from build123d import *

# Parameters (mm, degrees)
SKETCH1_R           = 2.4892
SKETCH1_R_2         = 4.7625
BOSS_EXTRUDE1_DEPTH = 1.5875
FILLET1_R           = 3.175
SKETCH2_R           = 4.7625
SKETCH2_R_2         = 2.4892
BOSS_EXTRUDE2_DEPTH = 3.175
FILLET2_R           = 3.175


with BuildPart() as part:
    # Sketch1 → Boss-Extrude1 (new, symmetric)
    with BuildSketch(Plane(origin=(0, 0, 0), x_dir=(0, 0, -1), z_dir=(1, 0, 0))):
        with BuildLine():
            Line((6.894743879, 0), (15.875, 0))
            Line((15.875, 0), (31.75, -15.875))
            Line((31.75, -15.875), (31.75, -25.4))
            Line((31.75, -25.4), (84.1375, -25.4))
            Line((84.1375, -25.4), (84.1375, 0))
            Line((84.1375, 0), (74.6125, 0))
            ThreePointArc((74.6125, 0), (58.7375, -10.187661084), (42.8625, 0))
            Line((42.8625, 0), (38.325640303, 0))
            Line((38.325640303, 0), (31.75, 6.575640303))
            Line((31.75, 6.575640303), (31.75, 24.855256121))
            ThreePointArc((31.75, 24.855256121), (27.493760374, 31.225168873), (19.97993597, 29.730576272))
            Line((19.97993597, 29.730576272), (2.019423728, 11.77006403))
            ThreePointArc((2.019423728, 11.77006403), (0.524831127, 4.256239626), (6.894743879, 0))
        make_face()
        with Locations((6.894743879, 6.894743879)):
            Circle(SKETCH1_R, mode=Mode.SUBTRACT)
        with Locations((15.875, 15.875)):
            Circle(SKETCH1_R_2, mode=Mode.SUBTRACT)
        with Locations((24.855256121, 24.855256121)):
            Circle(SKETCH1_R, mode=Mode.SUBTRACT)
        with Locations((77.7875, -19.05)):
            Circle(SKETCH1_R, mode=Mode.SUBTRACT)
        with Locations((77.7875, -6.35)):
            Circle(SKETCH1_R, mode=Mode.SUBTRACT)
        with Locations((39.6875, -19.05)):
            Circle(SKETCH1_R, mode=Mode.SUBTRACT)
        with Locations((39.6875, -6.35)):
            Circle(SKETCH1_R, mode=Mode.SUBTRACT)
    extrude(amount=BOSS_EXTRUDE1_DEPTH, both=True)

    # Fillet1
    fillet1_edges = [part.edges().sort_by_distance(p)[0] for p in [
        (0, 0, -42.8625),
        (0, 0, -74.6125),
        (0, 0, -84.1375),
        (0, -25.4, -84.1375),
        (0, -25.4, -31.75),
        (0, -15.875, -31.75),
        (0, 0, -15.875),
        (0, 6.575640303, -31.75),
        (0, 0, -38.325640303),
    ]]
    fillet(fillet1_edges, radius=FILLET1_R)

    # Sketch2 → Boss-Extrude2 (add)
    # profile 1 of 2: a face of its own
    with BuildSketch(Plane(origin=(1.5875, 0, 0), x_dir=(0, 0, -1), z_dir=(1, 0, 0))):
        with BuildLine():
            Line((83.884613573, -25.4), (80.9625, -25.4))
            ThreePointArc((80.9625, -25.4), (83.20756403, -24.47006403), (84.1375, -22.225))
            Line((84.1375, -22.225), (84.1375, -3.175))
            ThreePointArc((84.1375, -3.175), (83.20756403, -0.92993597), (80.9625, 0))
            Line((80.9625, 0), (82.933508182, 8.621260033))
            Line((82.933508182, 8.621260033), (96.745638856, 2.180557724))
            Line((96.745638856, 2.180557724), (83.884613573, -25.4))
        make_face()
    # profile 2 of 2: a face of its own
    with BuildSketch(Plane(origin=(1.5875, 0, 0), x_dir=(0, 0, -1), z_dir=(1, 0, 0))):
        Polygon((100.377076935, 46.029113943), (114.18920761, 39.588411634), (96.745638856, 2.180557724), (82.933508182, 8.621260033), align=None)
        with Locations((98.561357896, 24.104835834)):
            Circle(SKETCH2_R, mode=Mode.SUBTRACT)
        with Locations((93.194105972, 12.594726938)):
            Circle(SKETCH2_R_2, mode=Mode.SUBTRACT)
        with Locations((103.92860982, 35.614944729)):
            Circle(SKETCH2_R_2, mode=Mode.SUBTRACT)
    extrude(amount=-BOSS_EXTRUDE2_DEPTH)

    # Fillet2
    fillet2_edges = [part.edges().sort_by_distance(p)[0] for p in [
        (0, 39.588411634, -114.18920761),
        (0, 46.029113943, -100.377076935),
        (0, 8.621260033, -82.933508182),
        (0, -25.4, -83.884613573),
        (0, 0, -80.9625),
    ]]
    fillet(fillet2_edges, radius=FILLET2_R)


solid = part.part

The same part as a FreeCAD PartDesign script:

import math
import FreeCAD as App
import Part
import Sketcher
Q = App.Units.Quantity


def edges_at(feature, points):
    """Names of the edges that pass closest to the given points."""
    edges = feature.Shape.Edges
    near = lambda p: min(range(len(edges)), key=lambda i: edges[i].distToShape(Part.Vertex(*p))[0])
    return sorted({f"Edge{near(p) + 1}" for p in points})

doc = App.newDocument("Part")
params = doc.addObject("Spreadsheet::Sheet", "Params")
for row, (alias, value) in enumerate([
    ("sketch1_width", "1 in"),
    ("sketch1_length", "1 in"),
    ("sketch1_diameter", "0.196 in"),
    ("sketch1_diameter2", "0.375 in"),
    ("sketch1_radius", "0.6875 in"),
    ("pad1_length", "0.125 in"),
    ("fillet_radius", "0.125 in"),
    ("sketch2_diameter", "0.375 in"),
    ("sketch2_diameter2", "0.196 in"),
    ("sketch2_radius", "0.125 in"),
    ("sketch2_length", "0.6 in"),
    ("sketch2_length2", "1.625 in"),
    ("pad2_length", "0.125 in"),
    ("fillet2_radius", "0.125 in"),
], start=1):
    params.set(f"A{row}", alias)
    params.set(f"B{row}", "=" + value)
    params.setAlias(f"B{row}", alias)

body = doc.addObject("PartDesign::Body", "Body")

# Sketch on YZ plane
sketch1 = body.newObject("Sketcher::SketchObject", "Sketch")
sketch1.AttachmentSupport = (doc.getObject("YZ_Plane"), [""])
sketch1.MapMode = "FlatFace"
sketch1.addGeometry(Part.LineSegment(App.Vector(0, -6.9, 0), App.Vector(0, -15.9, 0)), False)
sketch1.addGeometry(Part.LineSegment(App.Vector(0, -15.9, 0), App.Vector(-15.9, -31.8, 0)), False)
sketch1.addGeometry(Part.LineSegment(App.Vector(-15.9, -31.8, 0), App.Vector(-25.4, -31.8, 0)), False)
sketch1.addGeometry(Part.LineSegment(App.Vector(-25.4, -31.8, 0), App.Vector(-25.4, -84.1, 0)), False)
sketch1.addGeometry(Part.LineSegment(App.Vector(-25.4, -84.1, 0), App.Vector(0, -84.1, 0)), False)
sketch1.addGeometry(Part.LineSegment(App.Vector(0, -84.1, 0), App.Vector(0, -74.6, 0)), False)
sketch1.addGeometry(Part.ArcOfCircle(Part.Circle(App.Vector(7.3, -58.7, 0), App.Vector(0, 0, 1), 17.5), math.radians(115), math.radians(245)), False)
sketch1.addGeometry(Part.LineSegment(App.Vector(0, -42.9, 0), App.Vector(0, -38.3, 0)), False)
sketch1.addGeometry(Part.LineSegment(App.Vector(0, -38.3, 0), App.Vector(6.6, -31.8, 0)), False)
sketch1.addGeometry(Part.LineSegment(App.Vector(6.6, -31.8, 0), App.Vector(24.9, -31.8, 0)), False)
sketch1.addGeometry(Part.ArcOfCircle(Part.Circle(App.Vector(24.9, -24.9, 0), App.Vector(0, 0, 1), 6.9), math.radians(-90), math.radians(45)), False)
sketch1.addGeometry(Part.LineSegment(App.Vector(29.7, -20, 0), App.Vector(11.8, -2, 0)), False)
sketch1.addGeometry(Part.ArcOfCircle(Part.Circle(App.Vector(6.9, -6.9, 0), App.Vector(0, 0, 1), 6.9), math.radians(45), math.radians(180)), False)
sketch1.addGeometry(Part.Circle(App.Vector(-19.1, -39.7, 0), App.Vector(0, 0, 1), 2.5), False)
sketch1.addGeometry(Part.Circle(App.Vector(-6.3, -39.7, 0), App.Vector(0, 0, 1), 2.5), False)
sketch1.addGeometry(Part.Circle(App.Vector(-19.1, -77.8, 0), App.Vector(0, 0, 1), 2.5), False)
sketch1.addGeometry(Part.Circle(App.Vector(-6.3, -77.8, 0), App.Vector(0, 0, 1), 2.5), False)
sketch1.addGeometry(Part.Circle(App.Vector(6.9, -6.9, 0), App.Vector(0, 0, 1), 2.5), False)
sketch1.addGeometry(Part.Circle(App.Vector(15.9, -15.9, 0), App.Vector(0, 0, 1), 4.8), False)
sketch1.addGeometry(Part.Circle(App.Vector(24.9, -24.9, 0), App.Vector(0, 0, 1), 2.5), False)
sketch1.addConstraint(Sketcher.Constraint("Coincident", 0, 2, 1, 1))
sketch1.addConstraint(Sketcher.Constraint("Coincident", 1, 2, 2, 1))
sketch1.addConstraint(Sketcher.Constraint("Coincident", 2, 2, 3, 1))
sketch1.addConstraint(Sketcher.Constraint("Coincident", 3, 2, 4, 1))
sketch1.addConstraint(Sketcher.Constraint("Coincident", 4, 2, 5, 1))
sketch1.addConstraint(Sketcher.Constraint("Coincident", 5, 2, 6, 2))
sketch1.addConstraint(Sketcher.Constraint("Coincident", 6, 1, 7, 1))
sketch1.addConstraint(Sketcher.Constraint("Coincident", 7, 2, 8, 1))
sketch1.addConstraint(Sketcher.Constraint("Coincident", 8, 2, 9, 1))
sketch1.addConstraint(Sketcher.Constraint("Tangent", 9, 2, 10, 1))
sketch1.addConstraint(Sketcher.Constraint("Tangent", 10, 2, 11, 1))
sketch1.addConstraint(Sketcher.Constraint("Tangent", 11, 2, 12, 1))
sketch1.addConstraint(Sketcher.Constraint("Tangent", 12, 2, 0, 1))
sketch1.addConstraint(Sketcher.Constraint("Vertical", 0))
sketch1.addConstraint(Sketcher.Constraint("Horizontal", 2))
sketch1.addConstraint(Sketcher.Constraint("Vertical", 3))
sketch1.addConstraint(Sketcher.Constraint("Horizontal", 4))
sketch1.addConstraint(Sketcher.Constraint("Vertical", 5))
sketch1.addConstraint(Sketcher.Constraint("Vertical", 7))
sketch1.addConstraint(Sketcher.Constraint("Horizontal", 9))
sketch1.addConstraint(Sketcher.Constraint("Coincident", 17, 3, 12, 3))
sketch1.addConstraint(Sketcher.Constraint("Coincident", 19, 3, 10, 3))
sketch1.addConstraint(Sketcher.Constraint("Equal", 10, 12))
sketch1.addConstraint(Sketcher.Constraint("Equal", 13, 14))
sketch1.addConstraint(Sketcher.Constraint("Equal", 14, 15))
sketch1.addConstraint(Sketcher.Constraint("Equal", 15, 16))
sketch1.addConstraint(Sketcher.Constraint("Equal", 16, 17))
sketch1.addConstraint(Sketcher.Constraint("Equal", 17, 19))
sketch1.addConstraint(Sketcher.Constraint("PointOnObject", 0, 2, -2))
sketch1.addConstraint(Sketcher.Constraint("PointOnObject", 4, 2, -2))
sketch1.addConstraint(Sketcher.Constraint("PointOnObject", 6, 1, -2))
sketch1.addConstraint(Sketcher.Constraint("Parallel", 1, 8))
sketch1.addConstraint(Sketcher.Constraint("Perpendicular", 8, 11))
sketch1.addConstraint(Sketcher.Constraint("Horizontal", 13, 3, 14, 3))
sketch1.addConstraint(Sketcher.Constraint("Horizontal", 15, 3, 16, 3))
sketch1.addConstraint(Sketcher.Constraint("Horizontal", 18, 3, 0, 2))
sketch1.addConstraint(Sketcher.Constraint("Horizontal", 2, 2, 8, 2))
sketch1.addConstraint(Sketcher.Constraint("Vertical", 13, 3, 15, 3))
sketch1.addConstraint(Sketcher.Constraint("Vertical", 14, 3, 16, 3))
sketch1.addConstraint(Sketcher.Constraint("Equal", 2, 5))
sketch1.addConstraint(Sketcher.Constraint("DistanceX", 4, 1, 4, 2, Q("1 in")))
sketch1.addConstraint(Sketcher.Constraint("Distance", 11, Q("1 in")))
sketch1.addConstraint(Sketcher.Constraint("Diameter", 13, Q("0.196 in")))
sketch1.addConstraint(Sketcher.Constraint("Diameter", 18, Q("0.375 in")))
sketch1.addConstraint(Sketcher.Constraint("Angle", 1, Q("-135 deg")))
sketch1.addConstraint(Sketcher.Constraint("Radius", 6, Q("0.6875 in")))
sketch1.addConstraint(Sketcher.Constraint("DistanceY", 3, 2, 6, 3, Q("1 in")))
sketch1.addConstraint(Sketcher.Constraint("DistanceX", 13, 3, 14, 3, Q("0.5 in")))
sketch1.addConstraint(Sketcher.Constraint("DistanceY", 15, 3, 13, 3, Q("1.5 in")))
sketch1.addConstraint(Sketcher.Constraint("DistanceX", 2, 2, 2, 1, Q("0.375 in")))
sketch1.addConstraint(Sketcher.Constraint("DistanceY", 3, 2, 3, 1, Q("2.0625 in")))
sketch1.addConstraint(Sketcher.Constraint("DistanceX", 13, 3, -1, 1, Q("0.75 in")))
sketch1.addConstraint(Sketcher.Constraint("DistanceY", 1, 2, -1, 1, Q("1.25 in")))
sketch1.addConstraint(Sketcher.Constraint("DistanceY", 6, 3, 13, 3, Q("0.75 in")))
sketch1.addConstraint(Sketcher.Constraint("DistanceX", -1, 1, 18, 3, Q("0.625 in")))
sketch1.addConstraint(Sketcher.Constraint("Radius", 10, Q("6.894744 mm")))
sketch1.addConstraint(Sketcher.Constraint("DistanceY", 7, 1, 7, 2, Q("4.53686 mm")))
sketch1.setExpression("Constraints[40]", "Params.sketch1_width")
sketch1.setExpression("Constraints[41]", "Params.sketch1_length")
sketch1.setExpression("Constraints[42]", "Params.sketch1_diameter")
sketch1.setExpression("Constraints[43]", "Params.sketch1_diameter2")
sketch1.setExpression("Constraints[45]", "Params.sketch1_radius")
pad1 = body.newObject("PartDesign::Pad", "Pad")
pad1.Profile = sketch1
pad1.setExpression("Length", "Params.pad1_length")
pad1.Midplane = True
doc.recompute()

fillet = body.newObject("PartDesign::Fillet", "Fillet")
fillet.Base = (pad1, edges_at(pad1, [
    (0, 0, -42.862),
    (0, 0, -74.612),
    (0, 0, -84.138),
    (0, -25.4, -84.138),
    (0, -25.4, -31.75),
    (0, -15.875, -31.75),
    (0, 0, -15.875),
    (0, 6.576, -31.75),
    (0, 0, -38.326),
]))
fillet.setExpression("Radius", "Params.fillet_radius")

# Sketch on YZ plane
sketch2 = body.newObject("Sketcher::SketchObject", "Sketch001")
sketch2.AttachmentSupport = (doc.getObject("YZ_Plane"), [""])
sketch2.MapMode = "FlatFace"
sketch2.AttachmentOffset = App.Placement(App.Vector(0, 0, 0.0625 * 25.4), App.Rotation())
sketch2.addGeometry(Part.LineSegment(App.Vector(-25.4, -81, 0), App.Vector(-25.4, -83.9, 0)), False)
sketch2.addGeometry(Part.LineSegment(App.Vector(-25.4, -83.9, 0), App.Vector(2.2, -96.7, 0)), False)
sketch2.addGeometry(Part.LineSegment(App.Vector(2.2, -96.7, 0), App.Vector(39.6, -114.2, 0)), False)
sketch2.addGeometry(Part.LineSegment(App.Vector(39.6, -114.2, 0), App.Vector(46, -100.4, 0)), False)
sketch2.addGeometry(Part.LineSegment(App.Vector(46, -100.4, 0), App.Vector(8.6, -82.9, 0)), False)
sketch2.addGeometry(Part.LineSegment(App.Vector(8.6, -82.9, 0), App.Vector(0, -81, 0)), False)
sketch2.addGeometry(Part.ArcOfCircle(Part.Circle(App.Vector(-3.2, -81, 0), App.Vector(0, 0, 1), 3.2), math.radians(-90), math.radians(0)), False)
sketch2.addGeometry(Part.LineSegment(App.Vector(-3.2, -84.1, 0), App.Vector(-22.2, -84.1, 0)), False)
sketch2.addGeometry(Part.ArcOfCircle(Part.Circle(App.Vector(-22.2, -81, 0), App.Vector(0, 0, 1), 3.2), math.radians(-180), math.radians(-90)), False)
sketch2.addGeometry(Part.Circle(App.Vector(24.1, -98.6, 0), App.Vector(0, 0, 1), 4.8), False)
sketch2.addGeometry(Part.Circle(App.Vector(12.6, -93.2, 0), App.Vector(0, 0, 1), 2.5), False)
sketch2.addGeometry(Part.Circle(App.Vector(35.6, -103.9, 0), App.Vector(0, 0, 1), 2.5), False)
sketch2.addConstraint(Sketcher.Constraint("Coincident", 0, 2, 1, 1))
sketch2.addConstraint(Sketcher.Constraint("Coincident", 1, 2, 2, 1))
sketch2.addConstraint(Sketcher.Constraint("Coincident", 2, 2, 3, 1))
sketch2.addConstraint(Sketcher.Constraint("Coincident", 3, 2, 4, 1))
sketch2.addConstraint(Sketcher.Constraint("Coincident", 4, 2, 5, 1))
sketch2.addConstraint(Sketcher.Constraint("Coincident", 5, 2, 6, 2))
sketch2.addConstraint(Sketcher.Constraint("Tangent", 6, 1, 7, 1))
sketch2.addConstraint(Sketcher.Constraint("Tangent", 7, 2, 8, 2))
sketch2.addConstraint(Sketcher.Constraint("Tangent", 8, 1, 0, 1))
sketch2.addConstraint(Sketcher.Constraint("Vertical", 0))
sketch2.addConstraint(Sketcher.Constraint("Horizontal", 7))
sketch2.addConstraint(Sketcher.Constraint("Equal", 6, 8))
sketch2.addConstraint(Sketcher.Constraint("Equal", 10, 11))
sketch2.addConstraint(Sketcher.Constraint("PointOnObject", 5, 2, -2))
sketch2.addConstraint(Sketcher.Constraint("Parallel", 1, 2))
sketch2.addConstraint(Sketcher.Constraint("Perpendicular", 2, 3))
sketch2.addConstraint(Sketcher.Constraint("Perpendicular", 3, 4))
sketch2.addConstraint(Sketcher.Constraint("Horizontal", 8, 3, 5, 2))
sketch2.addConstraint(Sketcher.Constraint("Equal", 2, 4))
sketch2.addConstraint(Sketcher.Constraint("Diameter", 9, Q("0.375 in")))
sketch2.addConstraint(Sketcher.Constraint("Diameter", 10, Q("0.196 in")))
sketch2.addConstraint(Sketcher.Constraint("DistanceX", 0, 2, -1, 1, Q("1 in")))
sketch2.addConstraint(Sketcher.Constraint("Angle", 1, Q("-25 deg")))
sketch2.addConstraint(Sketcher.Constraint("Radius", 6, Q("0.125 in")))
sketch2.addConstraint(Sketcher.Constraint("Distance", 3, Q("0.6 in")))
sketch2.addConstraint(Sketcher.Constraint("Distance", 2, Q("1.625 in")))
sketch2.addConstraint(Sketcher.Constraint("DistanceY", 6, 3, -1, 1, Q("3.1875 in")))
sketch2.addConstraint(Sketcher.Constraint("Distance", 5, Q("8.843698 mm")))
sketch2.addConstraint(Sketcher.Constraint("DistanceY", 2, 2, 10, 3, Q("20.995102 mm")))
sketch2.addConstraint(Sketcher.Constraint("Distance", 1, Q("30.431778 mm")))
sketch2.addConstraint(Sketcher.Constraint("DistanceY", 11, 3, -1, 1, Q("103.92861 mm")))
sketch2.addConstraint(Sketcher.Constraint("DistanceX", 10, 3, 9, 3, Q("11.510109 mm")))
sketch2.addConstraint(Sketcher.Constraint("DistanceY", 9, 3, 10, 3, Q("5.367252 mm")))
sketch2.addConstraint(Sketcher.Constraint("DistanceX", 9, 3, 11, 3, Q("11.510109 mm")))
sketch2.addConstraint(Sketcher.Constraint("DistanceX", 1, 2, 10, 3, Q("10.414169 mm")))
sketch2.setExpression("Constraints[19]", "Params.sketch2_diameter")
sketch2.setExpression("Constraints[20]", "Params.sketch2_diameter2")
sketch2.setExpression("Constraints[23]", "Params.sketch2_radius")
sketch2.setExpression("Constraints[24]", "Params.sketch2_length")
sketch2.setExpression("Constraints[25]", "Params.sketch2_length2")
pad2 = body.newObject("PartDesign::Pad", "Pad001")
pad2.Profile = sketch2
pad2.setExpression("Length", "Params.pad2_length")
pad2.Reversed = True
doc.recompute()

fillet2 = body.newObject("PartDesign::Fillet", "Fillet001")
fillet2.Base = (pad2, edges_at(pad2, [
    (0, 39.588, -114.189),
    (0, 46.029, -100.377),
    (0, 8.621, -82.934),
    (0, -25.4, -83.885),
    (0, 0, -80.963),
]))
fillet2.setExpression("Radius", "Params.fillet2_radius")

doc.recompute()
